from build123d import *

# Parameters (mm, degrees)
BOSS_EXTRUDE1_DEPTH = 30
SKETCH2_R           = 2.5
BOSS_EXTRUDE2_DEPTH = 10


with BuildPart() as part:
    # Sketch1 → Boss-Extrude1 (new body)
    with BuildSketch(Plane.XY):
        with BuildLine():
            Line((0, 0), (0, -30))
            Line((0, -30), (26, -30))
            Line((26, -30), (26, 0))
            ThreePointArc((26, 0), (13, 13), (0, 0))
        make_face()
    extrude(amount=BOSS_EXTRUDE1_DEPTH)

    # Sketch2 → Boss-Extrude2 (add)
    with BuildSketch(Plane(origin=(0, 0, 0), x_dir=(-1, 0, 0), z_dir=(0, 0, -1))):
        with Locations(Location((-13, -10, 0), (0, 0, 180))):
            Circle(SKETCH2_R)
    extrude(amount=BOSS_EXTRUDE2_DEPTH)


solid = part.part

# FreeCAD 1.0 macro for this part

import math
import FreeCAD as App
import Part
import Sketcher

V = App.Vector

doc = App.newDocument("Part")
body = doc.addObject("PartDesign::Body", "Body")

# Sketch on XY plane
sketch1 = doc.addObject("Sketcher::SketchObject", "Sketch")
body.addObject(sketch1)
sketch1.AttachmentSupport = (doc.XY_Plane, [""])
sketch1.MapMode = "FlatFace"
sketch1.addGeometry([
    Part.LineSegment(V(0, 0, 0), V(0, -30, 0)),
    Part.LineSegment(V(0, -30, 0), V(26, -30, 0)),
    Part.LineSegment(V(26, -30, 0), V(26, 0, 0)),
    Part.ArcOfCircle(Part.Circle(V(13, 0, 0), V(0, 0, 1), 13), math.radians(0), math.radians(180)),
], False)
sketch1.addConstraint([
    Sketcher.Constraint("Coincident", 0, 2, 1, 1),
    Sketcher.Constraint("Coincident", 1, 2, 2, 1),
    Sketcher.Constraint("Tangent", 2, 2, 3, 1),
    Sketcher.Constraint("Tangent", 3, 2, 0, 1),
    Sketcher.Constraint("Vertical", 0),
    Sketcher.Constraint("Horizontal", 1),
    Sketcher.Constraint("Vertical", 2),
    Sketcher.Constraint("Coincident", 3, 2, -1, 1),
    Sketcher.Constraint("Radius", 3, 13.0),
    Sketcher.Constraint("DistanceY", 0, 2, 0, 1, 30.0),
])
pad1 = doc.addObject("PartDesign::Pad", "Pad")
body.addObject(pad1)
pad1.Profile = sketch1
pad1.Length = 30

# Sketch on XY plane
sketch2 = doc.addObject("Sketcher::SketchObject", "Sketch001")
body.addObject(sketch2)
sketch2.AttachmentSupport = (doc.XY_Plane, [""])
sketch2.MapMode = "FlatFace"
sketch2.addGeometry(Part.Circle(V(13, -10, 0), V(0, 0, 1), 2.5), False)
sketch2.addConstraint([
    Sketcher.Constraint("Diameter", 0, 5.0),
    Sketcher.Constraint("DistanceX", -1, 1, 0, 3, 13.0),
    Sketcher.Constraint("DistanceY", 0, 3, -1, 1, 10.0),
])
pad2 = doc.addObject("PartDesign::Pad", "Pad001")
body.addObject(pad2)
pad2.Profile = sketch2
pad2.Length = 10
pad2.Reversed = True

doc.recompute()
